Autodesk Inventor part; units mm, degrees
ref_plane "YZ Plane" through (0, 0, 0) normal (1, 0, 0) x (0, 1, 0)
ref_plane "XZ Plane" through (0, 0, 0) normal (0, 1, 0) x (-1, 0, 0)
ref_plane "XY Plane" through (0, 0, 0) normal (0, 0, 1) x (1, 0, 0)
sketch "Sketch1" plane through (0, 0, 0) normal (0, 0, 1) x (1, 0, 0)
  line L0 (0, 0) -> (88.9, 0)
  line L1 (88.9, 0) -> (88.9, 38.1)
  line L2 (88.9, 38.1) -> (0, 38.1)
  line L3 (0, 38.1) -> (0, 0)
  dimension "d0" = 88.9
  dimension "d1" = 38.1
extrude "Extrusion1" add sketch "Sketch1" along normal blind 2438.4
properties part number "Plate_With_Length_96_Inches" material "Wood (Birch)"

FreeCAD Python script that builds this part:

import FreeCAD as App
import Part
import Sketcher

V = App.Vector
Q = App.Units.Quantity

doc = App.newDocument("Part")
body = doc.addObject("PartDesign::Body", "Body")

# Sketch on XY plane
sketch1 = body.newObject("Sketcher::SketchObject", "Sketch")
sketch1.AttachmentSupport = (doc.getObject("XY_Plane"), [""])
sketch1.MapMode = "FlatFace"
sketch1.addGeometry([
    Part.LineSegment(V(0, 38, 0), V(0, 0, 0)),
    Part.LineSegment(V(0, 0, 0), V(89, 0, 0)),
    Part.LineSegment(V(89, 0, 0), V(89, 38, 0)),
    Part.LineSegment(V(89, 38, 0), V(0, 38, 0)),
], False)
sketch1.addConstraint([
    Sketcher.Constraint("Coincident", 0, 2, 1, 1),
    Sketcher.Constraint("Coincident", 1, 2, 2, 1),
    Sketcher.Constraint("Coincident", 2, 2, 3, 1),
    Sketcher.Constraint("Coincident", 3, 2, 0, 1),
    Sketcher.Constraint("Vertical", 0),
    Sketcher.Constraint("Horizontal", 1),
    Sketcher.Constraint("Vertical", 2),
    Sketcher.Constraint("Horizontal", 3),
    Sketcher.Constraint("Coincident", 0, 2, -1, 1),
    Sketcher.Constraint("DistanceX", 1, 1, 1, 2, Q("3.5 in")),
    Sketcher.Constraint("DistanceY", 0, 2, 0, 1, Q("1.5 in")),
])
pad1 = body.newObject("PartDesign::Pad", "Pad")
pad1.Profile = sketch1
pad1.Length = Q("96 in")

doc.recompute()
